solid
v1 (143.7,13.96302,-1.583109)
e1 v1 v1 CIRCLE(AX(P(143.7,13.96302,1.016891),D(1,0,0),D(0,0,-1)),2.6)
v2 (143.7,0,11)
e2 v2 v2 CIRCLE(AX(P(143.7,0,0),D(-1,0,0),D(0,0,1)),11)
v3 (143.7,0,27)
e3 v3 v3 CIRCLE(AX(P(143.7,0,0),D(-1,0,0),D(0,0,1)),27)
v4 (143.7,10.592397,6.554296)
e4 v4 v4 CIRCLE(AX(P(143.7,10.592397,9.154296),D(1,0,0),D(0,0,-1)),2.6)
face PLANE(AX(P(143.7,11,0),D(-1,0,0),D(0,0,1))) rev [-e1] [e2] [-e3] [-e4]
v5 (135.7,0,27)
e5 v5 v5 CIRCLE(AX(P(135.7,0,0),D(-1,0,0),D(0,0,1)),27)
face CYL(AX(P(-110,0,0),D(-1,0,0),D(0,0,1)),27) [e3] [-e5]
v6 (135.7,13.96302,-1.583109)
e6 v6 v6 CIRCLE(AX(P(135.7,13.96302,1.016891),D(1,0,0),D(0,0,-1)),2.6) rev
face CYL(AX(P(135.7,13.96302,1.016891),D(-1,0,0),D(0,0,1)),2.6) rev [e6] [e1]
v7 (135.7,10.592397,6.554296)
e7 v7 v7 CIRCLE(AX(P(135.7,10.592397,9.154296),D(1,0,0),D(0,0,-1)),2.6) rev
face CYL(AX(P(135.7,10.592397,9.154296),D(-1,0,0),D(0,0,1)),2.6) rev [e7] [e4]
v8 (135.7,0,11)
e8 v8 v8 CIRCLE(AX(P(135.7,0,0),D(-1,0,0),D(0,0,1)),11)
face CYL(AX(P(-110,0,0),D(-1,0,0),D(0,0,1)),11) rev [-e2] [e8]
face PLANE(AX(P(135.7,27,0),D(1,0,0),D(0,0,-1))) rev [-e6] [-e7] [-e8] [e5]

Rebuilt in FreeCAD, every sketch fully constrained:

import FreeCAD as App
import Part
import Sketcher

V = App.Vector


def add_polygon(sketch, points):
    """Adds a closed chain of lines whose ends are joined by coincident constraints."""
    first, n = sketch.GeometryCount, len(points)
    for a, b in zip(points, points[1:] + points[:1]):
        sketch.addGeometry(Part.LineSegment(App.Vector(*a, 0), App.Vector(*b, 0)), False)
    for i in range(n):
        sketch.addConstraint(Sketcher.Constraint("Coincident", first + i, 2, first + (i + 1) % n, 1))

doc = App.newDocument("Part")
body = doc.addObject("PartDesign::Body", "Body")

# Sketch on XY plane
sketch1 = body.newObject("Sketcher::SketchObject", "Sketch")
sketch1.AttachmentSupport = (doc.getObject("XY_Plane"), [""])
sketch1.MapMode = "FlatFace"
add_polygon(sketch1, [(135.7, 27), (135.7, 11), (143.7, 11), (143.7, 27)])  # lines 0-3
sketch1.addConstraint(Sketcher.Constraint("Vertical", 0))
sketch1.addConstraint(Sketcher.Constraint("Horizontal", 1))
sketch1.addConstraint(Sketcher.Constraint("Vertical", 2))
sketch1.addConstraint(Sketcher.Constraint("Horizontal", 3))
sketch1.addConstraint(Sketcher.Constraint("DistanceX", 1, 1, 1, 2, 8.0))
sketch1.addConstraint(Sketcher.Constraint("DistanceY", 0, 2, 0, 1, 16.0))
sketch1.addConstraint(Sketcher.Constraint("DistanceY", -1, 1, 0, 2, 11.0))
sketch1.addConstraint(Sketcher.Constraint("DistanceX", -1, 1, 0, 2, 135.7))
revolution = body.newObject("PartDesign::Revolution", "Revolution")
revolution.Profile = sketch1
revolution.ReferenceAxis = (sketch1, ["H_Axis"])
revolution.Angle = 360

# Sketch on YZ plane
sketch2 = body.newObject("Sketcher::SketchObject", "Sketch001")
sketch2.AttachmentSupport = (doc.getObject("YZ_Plane"), [""])
sketch2.MapMode = "FlatFace"
sketch2.addGeometry(Part.Circle(V(13.96302, 1.016891, 0), V(0, 0, 1), 2.6), False)
sketch2.addGeometry(Part.Circle(V(10.592397, 9.154296, 0), V(0, 0, 1), 2.6), False)
sketch2.addConstraint(Sketcher.Constraint("Equal", 0, 1))
sketch2.addConstraint(Sketcher.Constraint("Diameter", 0, 5.2))
sketch2.addConstraint(Sketcher.Constraint("DistanceX", -1, 1, 0, 3, 13.96302))
sketch2.addConstraint(Sketcher.Constraint("DistanceY", -1, 1, 0, 3, 1.016891))
sketch2.addConstraint(Sketcher.Constraint("DistanceX", -1, 1, 1, 3, 10.592397))
sketch2.addConstraint(Sketcher.Constraint("DistanceY", -1, 1, 1, 3, 9.154296))
pocket1 = body.newObject("PartDesign::Pocket", "Pocket")
pocket1.Profile = sketch2
pocket1.Type = "ThroughAll"
pocket1.Midplane = True

doc.recompute()
